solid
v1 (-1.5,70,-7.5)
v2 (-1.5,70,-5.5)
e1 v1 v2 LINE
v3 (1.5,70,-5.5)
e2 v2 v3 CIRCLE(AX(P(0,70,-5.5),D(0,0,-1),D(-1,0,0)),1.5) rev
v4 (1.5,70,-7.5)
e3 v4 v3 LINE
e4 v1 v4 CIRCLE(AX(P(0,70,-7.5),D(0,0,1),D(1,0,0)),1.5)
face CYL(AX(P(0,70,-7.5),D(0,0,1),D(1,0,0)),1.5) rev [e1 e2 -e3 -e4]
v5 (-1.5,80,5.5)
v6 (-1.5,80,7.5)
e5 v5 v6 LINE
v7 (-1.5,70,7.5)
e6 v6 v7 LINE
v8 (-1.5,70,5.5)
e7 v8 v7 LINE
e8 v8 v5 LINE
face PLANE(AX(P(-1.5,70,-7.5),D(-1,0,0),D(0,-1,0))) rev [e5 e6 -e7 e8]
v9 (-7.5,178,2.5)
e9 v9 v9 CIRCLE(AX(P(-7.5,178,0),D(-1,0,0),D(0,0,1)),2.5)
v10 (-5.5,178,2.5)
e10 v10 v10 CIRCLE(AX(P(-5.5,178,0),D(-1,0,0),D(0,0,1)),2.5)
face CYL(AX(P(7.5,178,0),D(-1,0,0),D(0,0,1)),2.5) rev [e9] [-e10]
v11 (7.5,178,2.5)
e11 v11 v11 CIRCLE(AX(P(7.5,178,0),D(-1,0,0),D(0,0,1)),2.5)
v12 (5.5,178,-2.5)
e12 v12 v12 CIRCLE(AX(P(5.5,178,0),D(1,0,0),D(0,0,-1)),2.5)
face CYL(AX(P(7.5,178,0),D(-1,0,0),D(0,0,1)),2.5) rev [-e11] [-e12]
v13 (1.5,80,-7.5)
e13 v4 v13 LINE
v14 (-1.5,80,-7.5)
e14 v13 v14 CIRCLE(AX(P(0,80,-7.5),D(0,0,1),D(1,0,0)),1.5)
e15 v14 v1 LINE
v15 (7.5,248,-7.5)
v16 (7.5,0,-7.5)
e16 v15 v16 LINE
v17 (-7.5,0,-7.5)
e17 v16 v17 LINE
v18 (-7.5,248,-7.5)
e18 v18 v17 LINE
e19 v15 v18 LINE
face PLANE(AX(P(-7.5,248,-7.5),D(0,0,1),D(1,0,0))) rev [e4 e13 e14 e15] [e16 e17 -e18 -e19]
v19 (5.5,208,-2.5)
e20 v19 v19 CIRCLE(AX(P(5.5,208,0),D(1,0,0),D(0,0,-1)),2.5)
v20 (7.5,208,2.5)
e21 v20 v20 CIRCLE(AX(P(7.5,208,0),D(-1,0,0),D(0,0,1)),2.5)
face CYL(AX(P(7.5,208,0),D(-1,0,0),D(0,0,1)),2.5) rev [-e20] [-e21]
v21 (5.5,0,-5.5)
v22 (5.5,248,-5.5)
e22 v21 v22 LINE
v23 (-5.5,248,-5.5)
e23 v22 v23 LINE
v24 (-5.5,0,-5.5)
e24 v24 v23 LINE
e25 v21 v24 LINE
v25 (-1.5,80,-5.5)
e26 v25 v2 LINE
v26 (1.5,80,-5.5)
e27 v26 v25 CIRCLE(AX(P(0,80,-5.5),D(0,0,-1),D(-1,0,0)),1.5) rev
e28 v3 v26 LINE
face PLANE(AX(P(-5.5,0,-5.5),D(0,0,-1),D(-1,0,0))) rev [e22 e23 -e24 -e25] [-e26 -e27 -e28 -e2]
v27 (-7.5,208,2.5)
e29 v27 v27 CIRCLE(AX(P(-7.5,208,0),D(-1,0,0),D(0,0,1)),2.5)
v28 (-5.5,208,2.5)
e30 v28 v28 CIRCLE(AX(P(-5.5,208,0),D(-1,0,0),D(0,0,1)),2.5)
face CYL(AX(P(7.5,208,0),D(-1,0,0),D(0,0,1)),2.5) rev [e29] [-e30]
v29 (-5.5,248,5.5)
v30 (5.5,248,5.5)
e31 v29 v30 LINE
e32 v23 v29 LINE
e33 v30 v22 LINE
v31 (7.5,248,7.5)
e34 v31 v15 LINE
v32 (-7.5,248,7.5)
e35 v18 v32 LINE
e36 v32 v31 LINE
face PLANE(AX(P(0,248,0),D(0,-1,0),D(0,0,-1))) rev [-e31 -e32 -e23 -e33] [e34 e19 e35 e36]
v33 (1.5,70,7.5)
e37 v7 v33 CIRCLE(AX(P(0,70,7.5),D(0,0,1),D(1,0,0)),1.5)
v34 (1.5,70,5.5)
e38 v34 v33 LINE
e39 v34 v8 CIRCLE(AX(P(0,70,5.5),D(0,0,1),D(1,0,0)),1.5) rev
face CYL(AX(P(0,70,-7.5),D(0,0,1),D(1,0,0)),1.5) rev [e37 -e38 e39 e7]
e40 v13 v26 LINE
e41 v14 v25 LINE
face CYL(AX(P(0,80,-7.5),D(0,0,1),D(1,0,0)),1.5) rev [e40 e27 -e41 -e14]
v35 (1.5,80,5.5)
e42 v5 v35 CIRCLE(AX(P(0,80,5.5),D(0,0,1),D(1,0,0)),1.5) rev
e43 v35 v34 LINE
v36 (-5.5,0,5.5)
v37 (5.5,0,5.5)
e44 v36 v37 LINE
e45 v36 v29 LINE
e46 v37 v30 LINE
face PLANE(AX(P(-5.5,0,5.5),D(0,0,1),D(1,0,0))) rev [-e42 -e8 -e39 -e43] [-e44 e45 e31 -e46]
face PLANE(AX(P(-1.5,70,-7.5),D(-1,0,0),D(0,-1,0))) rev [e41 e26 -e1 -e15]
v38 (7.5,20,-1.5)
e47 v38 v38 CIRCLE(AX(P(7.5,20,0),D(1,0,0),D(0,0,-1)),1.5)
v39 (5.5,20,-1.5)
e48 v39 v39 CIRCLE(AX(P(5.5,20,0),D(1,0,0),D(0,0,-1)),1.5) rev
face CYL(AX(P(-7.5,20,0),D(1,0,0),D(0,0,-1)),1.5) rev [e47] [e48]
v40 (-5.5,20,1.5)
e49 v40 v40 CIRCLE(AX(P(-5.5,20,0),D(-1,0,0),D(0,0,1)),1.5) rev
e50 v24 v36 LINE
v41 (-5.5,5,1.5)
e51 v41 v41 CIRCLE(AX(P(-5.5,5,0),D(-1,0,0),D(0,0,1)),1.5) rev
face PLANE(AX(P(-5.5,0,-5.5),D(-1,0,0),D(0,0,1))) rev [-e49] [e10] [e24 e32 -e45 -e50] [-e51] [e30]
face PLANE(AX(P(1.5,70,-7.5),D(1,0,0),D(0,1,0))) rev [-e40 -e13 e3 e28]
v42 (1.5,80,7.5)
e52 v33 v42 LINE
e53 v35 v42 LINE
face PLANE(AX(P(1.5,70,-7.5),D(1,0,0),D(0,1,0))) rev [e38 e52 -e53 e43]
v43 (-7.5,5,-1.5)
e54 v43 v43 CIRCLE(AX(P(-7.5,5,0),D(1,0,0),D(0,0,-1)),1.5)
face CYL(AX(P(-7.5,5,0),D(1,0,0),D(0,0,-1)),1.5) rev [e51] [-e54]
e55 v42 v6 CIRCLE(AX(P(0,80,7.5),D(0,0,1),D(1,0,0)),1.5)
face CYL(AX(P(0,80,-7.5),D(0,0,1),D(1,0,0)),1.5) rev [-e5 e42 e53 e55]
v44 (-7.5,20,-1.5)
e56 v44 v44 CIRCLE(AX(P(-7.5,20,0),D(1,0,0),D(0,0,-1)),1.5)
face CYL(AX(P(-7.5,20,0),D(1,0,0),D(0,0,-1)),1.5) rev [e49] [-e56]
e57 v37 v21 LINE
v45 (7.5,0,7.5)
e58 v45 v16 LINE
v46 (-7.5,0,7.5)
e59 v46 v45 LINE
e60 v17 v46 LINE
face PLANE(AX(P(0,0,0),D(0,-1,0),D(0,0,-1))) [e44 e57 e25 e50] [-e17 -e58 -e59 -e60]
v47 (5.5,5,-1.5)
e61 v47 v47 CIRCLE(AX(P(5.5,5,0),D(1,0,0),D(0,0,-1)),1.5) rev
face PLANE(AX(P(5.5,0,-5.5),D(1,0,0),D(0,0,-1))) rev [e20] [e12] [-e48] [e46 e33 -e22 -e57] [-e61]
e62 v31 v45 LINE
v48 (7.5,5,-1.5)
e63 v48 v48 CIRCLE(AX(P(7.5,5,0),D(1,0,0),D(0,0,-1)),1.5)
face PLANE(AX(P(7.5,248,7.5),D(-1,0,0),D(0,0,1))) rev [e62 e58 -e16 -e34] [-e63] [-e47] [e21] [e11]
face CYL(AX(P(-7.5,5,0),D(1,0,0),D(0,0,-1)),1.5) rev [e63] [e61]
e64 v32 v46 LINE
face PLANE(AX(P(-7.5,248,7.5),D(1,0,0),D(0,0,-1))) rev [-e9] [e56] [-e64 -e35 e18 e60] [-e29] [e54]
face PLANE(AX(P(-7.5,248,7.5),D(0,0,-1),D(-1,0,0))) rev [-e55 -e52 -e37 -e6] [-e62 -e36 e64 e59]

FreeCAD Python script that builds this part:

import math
import FreeCAD as App
import Part
import Sketcher
Q = App.Units.Quantity

doc = App.newDocument("Part")
body = doc.addObject("PartDesign::Body", "Body")

# Sketch on XZ plane
sketch1 = doc.addObject("Sketcher::SketchObject", "Sketch")
body.addObject(sketch1)
sketch1.AttachmentSupport = (doc.XZ_Plane, [""])
sketch1.MapMode = "FlatFace"
sketch1.addGeometry(Part.LineSegment(App.Vector(-8, -8, 0), App.Vector(-8, 8, 0)), False)
sketch1.addGeometry(Part.LineSegment(App.Vector(-8, 8, 0), App.Vector(8, 8, 0)), False)
sketch1.addGeometry(Part.LineSegment(App.Vector(8, 8, 0), App.Vector(8, -8, 0)), False)
sketch1.addGeometry(Part.LineSegment(App.Vector(8, -8, 0), App.Vector(-8, -8, 0)), False)
sketch1.addConstraint(Sketcher.Constraint("Coincident", 0, 2, 1, 1))
sketch1.addConstraint(Sketcher.Constraint("Coincident", 1, 2, 2, 1))
sketch1.addConstraint(Sketcher.Constraint("Coincident", 2, 2, 3, 1))
sketch1.addConstraint(Sketcher.Constraint("Coincident", 3, 2, 0, 1))
sketch1.addConstraint(Sketcher.Constraint("Vertical", 0))
sketch1.addConstraint(Sketcher.Constraint("Horizontal", 1))
sketch1.addConstraint(Sketcher.Constraint("Vertical", 2))
sketch1.addConstraint(Sketcher.Constraint("Horizontal", 3))
sketch1.addConstraint(Sketcher.Constraint("Symmetric", 0, 2, 2, 2, -1, 1))
sketch1.addConstraint(Sketcher.Constraint("Equal", 3, 0))
sketch1.addConstraint(Sketcher.Constraint("DistanceX", 1, 1, 1, 2, Q("15 mm")))
pad1 = doc.addObject("PartDesign::Pad", "Pad")
body.addObject(pad1)
pad1.Profile = sketch1
pad1.Length = 248
pad1.Reversed = True

# Sketch on YZ plane
sketch2 = doc.addObject("Sketcher::SketchObject", "Sketch001")
body.addObject(sketch2)
sketch2.AttachmentSupport = (doc.YZ_Plane, [""])
sketch2.MapMode = "FlatFace"
sketch2.AttachmentOffset = App.Placement(App.Vector(0, 0, 7.5), App.Rotation())
sketch2.addGeometry(Part.Circle(App.Vector(5, 0, 0), App.Vector(0, 0, 1), 1.5), False)
sketch2.addGeometry(Part.Circle(App.Vector(20, 0, 0), App.Vector(0, 0, 1), 1.5), False)
sketch2.addConstraint(Sketcher.Constraint("Equal", 0, 1))
sketch2.addConstraint(Sketcher.Constraint("PointOnObject", 0, 3, -1))
sketch2.addConstraint(Sketcher.Constraint("PointOnObject", 1, 3, -1))
sketch2.addConstraint(Sketcher.Constraint("Diameter", 0, Q("3 mm")))
sketch2.addConstraint(Sketcher.Constraint("DistanceX", -1, 1, 0, 3, Q("5 mm")))
sketch2.addConstraint(Sketcher.Constraint("DistanceX", -1, 1, 1, 3, Q("20 mm")))
pocket1 = doc.addObject("PartDesign::Pocket", "Pocket")
body.addObject(pocket1)
pocket1.Profile = sketch2
pocket1.Length = 15

# Sketch on XY plane
sketch3 = doc.addObject("Sketcher::SketchObject", "Sketch002")
body.addObject(sketch3)
sketch3.AttachmentSupport = (doc.XY_Plane, [""])
sketch3.MapMode = "FlatFace"
sketch3.AttachmentOffset = App.Placement(App.Vector(0, 0, 7.5), App.Rotation())
sketch3.addGeometry(Part.LineSegment(App.Vector(-1.5, 80, 0), App.Vector(-1.5, 70, 0)), False)
sketch3.addGeometry(Part.ArcOfCircle(Part.Circle(App.Vector(0, 70, 0), App.Vector(0, 0, 1), 1.5), math.radians(180), math.radians(360)), False)
sketch3.addGeometry(Part.LineSegment(App.Vector(1.5, 70, 0), App.Vector(1.5, 80, 0)), False)
sketch3.addGeometry(Part.ArcOfCircle(Part.Circle(App.Vector(0, 80, 0), App.Vector(0, 0, 1), 1.5), math.radians(0), math.radians(180)), False)
sketch3.addConstraint(Sketcher.Constraint("Tangent", 0, 2, 1, 1))
sketch3.addConstraint(Sketcher.Constraint("Tangent", 1, 2, 2, 1))
sketch3.addConstraint(Sketcher.Constraint("Tangent", 2, 2, 3, 1))
sketch3.addConstraint(Sketcher.Constraint("Tangent", 3, 2, 0, 1))
sketch3.addConstraint(Sketcher.Constraint("Vertical", 0))
sketch3.addConstraint(Sketcher.Constraint("Vertical", 2))
sketch3.addConstraint(Sketcher.Constraint("PointOnObject", 1, 3, -2))
sketch3.addConstraint(Sketcher.Constraint("Radius", 1, Q("1.5 mm")))
sketch3.addConstraint(Sketcher.Constraint("DistanceY", 0, 2, 0, 1, Q("10 mm")))
sketch3.addConstraint(Sketcher.Constraint("DistanceY", -1, 1, 1, 3, Q("70 mm")))
pocket2 = doc.addObject("PartDesign::Pocket", "Pocket001")
body.addObject(pocket2)
pocket2.Profile = sketch3
pocket2.Length = 15

# Sketch on XZ plane
sketch4 = doc.addObject("Sketcher::SketchObject", "Sketch003")
body.addObject(sketch4)
sketch4.AttachmentSupport = (doc.XZ_Plane, [""])
sketch4.MapMode = "FlatFace"
sketch4.AttachmentOffset = App.Placement(App.Vector(0, 0, -248), App.Rotation())
sketch4.addGeometry(Part.LineSegment(App.Vector(-6, -6, 0), App.Vector(-6, 6, 0)), False)
sketch4.addGeometry(Part.LineSegment(App.Vector(-6, 6, 0), App.Vector(6, 6, 0)), False)
sketch4.addGeometry(Part.LineSegment(App.Vector(6, 6, 0), App.Vector(6, -6, 0)), False)
sketch4.addGeometry(Part.LineSegment(App.Vector(6, -6, 0), App.Vector(-6, -6, 0)), False)
sketch4.addConstraint(Sketcher.Constraint("Coincident", 0, 2, 1, 1))
sketch4.addConstraint(Sketcher.Constraint("Coincident", 1, 2, 2, 1))
sketch4.addConstraint(Sketcher.Constraint("Coincident", 2, 2, 3, 1))
sketch4.addConstraint(Sketcher.Constraint("Coincident", 3, 2, 0, 1))
sketch4.addConstraint(Sketcher.Constraint("Vertical", 0))
sketch4.addConstraint(Sketcher.Constraint("Horizontal", 1))
sketch4.addConstraint(Sketcher.Constraint("Vertical", 2))
sketch4.addConstraint(Sketcher.Constraint("Horizontal", 3))
sketch4.addConstraint(Sketcher.Constraint("Symmetric", 0, 2, 2, 2, -1, 1))
sketch4.addConstraint(Sketcher.Constraint("Equal", 3, 0))
sketch4.addConstraint(Sketcher.Constraint("DistanceX", 1, 1, 1, 2, Q("11 mm")))
pocket3 = doc.addObject("PartDesign::Pocket", "Pocket002")
body.addObject(pocket3)
pocket3.Profile = sketch4
pocket3.Length = 248
pocket3.Reversed = True

# Sketch on YZ plane
sketch5 = doc.addObject("Sketcher::SketchObject", "Sketch004")
body.addObject(sketch5)
sketch5.AttachmentSupport = (doc.YZ_Plane, [""])
sketch5.MapMode = "FlatFace"
sketch5.AttachmentOffset = App.Placement(App.Vector(0, 0, -7.5), App.Rotation())
sketch5.addGeometry(Part.Circle(App.Vector(208, 0, 0), App.Vector(0, 0, 1), 2.5), False)
sketch5.addGeometry(Part.Circle(App.Vector(178, 0, 0), App.Vector(0, 0, 1), 2.5), False)
sketch5.addConstraint(Sketcher.Constraint("Equal", 0, 1))
sketch5.addConstraint(Sketcher.Constraint("PointOnObject", 0, 3, -1))
sketch5.addConstraint(Sketcher.Constraint("PointOnObject", 1, 3, -1))
sketch5.addConstraint(Sketcher.Constraint("Diameter", 0, Q("5 mm")))
sketch5.addConstraint(Sketcher.Constraint("DistanceX", -1, 1, 0, 3, Q("208 mm")))
sketch5.addConstraint(Sketcher.Constraint("DistanceX", -1, 1, 1, 3, Q("178 mm")))
pocket4 = doc.addObject("PartDesign::Pocket", "Pocket003")
body.addObject(pocket4)
pocket4.Profile = sketch5
pocket4.Length = 15
pocket4.Reversed = True

doc.recompute()
